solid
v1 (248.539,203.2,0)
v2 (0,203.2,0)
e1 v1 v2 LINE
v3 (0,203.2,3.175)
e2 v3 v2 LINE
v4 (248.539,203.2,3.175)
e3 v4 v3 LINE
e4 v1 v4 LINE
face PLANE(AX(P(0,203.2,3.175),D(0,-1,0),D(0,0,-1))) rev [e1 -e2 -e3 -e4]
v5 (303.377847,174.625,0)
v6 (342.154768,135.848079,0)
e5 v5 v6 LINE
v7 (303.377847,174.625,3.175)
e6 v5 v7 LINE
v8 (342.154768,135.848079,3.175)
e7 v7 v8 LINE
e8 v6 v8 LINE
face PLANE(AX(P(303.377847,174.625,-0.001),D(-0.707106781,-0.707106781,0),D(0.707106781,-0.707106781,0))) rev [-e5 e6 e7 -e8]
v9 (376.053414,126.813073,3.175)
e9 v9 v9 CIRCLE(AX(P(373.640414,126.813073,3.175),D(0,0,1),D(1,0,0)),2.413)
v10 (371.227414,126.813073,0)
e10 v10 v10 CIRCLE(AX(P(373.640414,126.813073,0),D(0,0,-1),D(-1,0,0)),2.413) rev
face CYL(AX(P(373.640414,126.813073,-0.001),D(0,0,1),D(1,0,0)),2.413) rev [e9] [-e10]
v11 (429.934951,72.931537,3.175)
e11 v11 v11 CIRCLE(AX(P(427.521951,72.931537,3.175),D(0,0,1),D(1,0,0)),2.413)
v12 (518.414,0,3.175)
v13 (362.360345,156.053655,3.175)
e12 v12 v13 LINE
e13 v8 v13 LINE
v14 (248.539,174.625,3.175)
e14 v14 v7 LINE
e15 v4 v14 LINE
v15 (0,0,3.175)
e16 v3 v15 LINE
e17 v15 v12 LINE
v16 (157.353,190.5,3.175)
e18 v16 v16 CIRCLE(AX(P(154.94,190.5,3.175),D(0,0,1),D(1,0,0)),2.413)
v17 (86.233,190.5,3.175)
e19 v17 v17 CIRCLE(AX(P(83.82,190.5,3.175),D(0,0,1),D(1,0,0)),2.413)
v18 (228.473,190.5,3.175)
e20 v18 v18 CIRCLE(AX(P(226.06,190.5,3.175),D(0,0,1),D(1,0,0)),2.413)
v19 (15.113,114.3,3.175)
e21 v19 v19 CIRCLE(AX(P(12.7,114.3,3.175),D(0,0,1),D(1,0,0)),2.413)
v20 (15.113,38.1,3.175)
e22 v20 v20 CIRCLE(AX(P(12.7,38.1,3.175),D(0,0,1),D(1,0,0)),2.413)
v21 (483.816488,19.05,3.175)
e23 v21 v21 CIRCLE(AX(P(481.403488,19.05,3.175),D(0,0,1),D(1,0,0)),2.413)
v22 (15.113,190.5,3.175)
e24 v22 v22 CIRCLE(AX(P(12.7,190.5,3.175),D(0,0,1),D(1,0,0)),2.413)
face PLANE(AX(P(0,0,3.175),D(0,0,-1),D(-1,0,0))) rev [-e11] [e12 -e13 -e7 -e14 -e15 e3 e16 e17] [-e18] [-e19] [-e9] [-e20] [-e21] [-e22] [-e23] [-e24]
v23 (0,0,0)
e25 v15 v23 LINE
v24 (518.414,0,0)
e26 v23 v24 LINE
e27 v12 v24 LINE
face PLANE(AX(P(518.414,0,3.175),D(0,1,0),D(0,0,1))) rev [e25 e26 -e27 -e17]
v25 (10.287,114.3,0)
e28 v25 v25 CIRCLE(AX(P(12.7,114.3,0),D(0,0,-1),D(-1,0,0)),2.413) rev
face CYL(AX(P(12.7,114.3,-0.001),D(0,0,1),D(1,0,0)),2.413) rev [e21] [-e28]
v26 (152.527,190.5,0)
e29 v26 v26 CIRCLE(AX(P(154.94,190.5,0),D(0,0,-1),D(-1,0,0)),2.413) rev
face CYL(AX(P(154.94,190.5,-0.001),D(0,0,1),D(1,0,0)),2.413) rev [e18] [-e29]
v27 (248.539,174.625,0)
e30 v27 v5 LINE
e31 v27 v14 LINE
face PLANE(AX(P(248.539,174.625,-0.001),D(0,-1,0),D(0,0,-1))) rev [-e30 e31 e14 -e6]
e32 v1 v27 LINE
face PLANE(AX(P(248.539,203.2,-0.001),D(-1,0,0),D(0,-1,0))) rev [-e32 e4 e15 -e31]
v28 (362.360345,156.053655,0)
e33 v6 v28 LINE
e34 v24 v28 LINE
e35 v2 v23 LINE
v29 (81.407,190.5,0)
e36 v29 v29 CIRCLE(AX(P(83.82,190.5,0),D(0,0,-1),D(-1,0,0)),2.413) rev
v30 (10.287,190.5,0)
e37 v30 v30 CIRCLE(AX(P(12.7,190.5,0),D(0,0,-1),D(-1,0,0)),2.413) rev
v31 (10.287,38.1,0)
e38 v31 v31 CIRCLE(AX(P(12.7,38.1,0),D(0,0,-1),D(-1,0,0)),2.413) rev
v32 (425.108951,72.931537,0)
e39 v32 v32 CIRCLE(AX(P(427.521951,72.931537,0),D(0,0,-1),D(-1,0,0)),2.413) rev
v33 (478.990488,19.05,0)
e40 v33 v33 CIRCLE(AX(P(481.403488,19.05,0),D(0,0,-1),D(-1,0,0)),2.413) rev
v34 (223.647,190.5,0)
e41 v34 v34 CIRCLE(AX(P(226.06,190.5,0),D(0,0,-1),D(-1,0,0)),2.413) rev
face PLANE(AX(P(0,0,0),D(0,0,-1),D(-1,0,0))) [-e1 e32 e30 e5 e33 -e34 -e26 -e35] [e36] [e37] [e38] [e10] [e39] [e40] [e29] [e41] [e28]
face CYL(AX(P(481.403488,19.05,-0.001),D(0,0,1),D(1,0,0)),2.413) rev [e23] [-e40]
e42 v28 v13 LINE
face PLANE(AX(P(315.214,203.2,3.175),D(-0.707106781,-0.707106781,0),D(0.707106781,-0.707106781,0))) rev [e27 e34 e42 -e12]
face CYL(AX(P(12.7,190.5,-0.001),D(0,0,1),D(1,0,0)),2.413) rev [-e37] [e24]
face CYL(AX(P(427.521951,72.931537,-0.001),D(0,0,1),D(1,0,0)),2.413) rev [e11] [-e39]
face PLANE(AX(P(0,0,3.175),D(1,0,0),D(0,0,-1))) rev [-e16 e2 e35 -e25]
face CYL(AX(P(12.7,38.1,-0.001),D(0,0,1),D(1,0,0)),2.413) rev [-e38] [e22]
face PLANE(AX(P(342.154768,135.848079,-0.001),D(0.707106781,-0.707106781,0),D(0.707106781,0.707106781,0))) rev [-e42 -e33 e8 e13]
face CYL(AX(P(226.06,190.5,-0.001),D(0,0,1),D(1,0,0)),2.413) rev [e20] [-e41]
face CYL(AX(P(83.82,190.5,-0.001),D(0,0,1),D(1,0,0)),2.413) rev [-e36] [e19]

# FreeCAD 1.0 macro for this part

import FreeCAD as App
import Part
import Sketcher
from FreeCAD import Vector
Q = App.Units.Quantity

doc = App.newDocument("Part")
body = doc.addObject("PartDesign::Body", "Body")

# Sketch on XY plane
sketch1 = body.newObject("Sketcher::SketchObject", "Sketch")
sketch1.AttachmentSupport = (doc.getObject("XY_Plane"), [""])
sketch1.MapMode = "FlatFace"
sketch1.addGeometry([
    Part.LineSegment(Vector(518.414, 0, 0), Vector(315.214, 203.2, 0)),
    Part.LineSegment(Vector(315.214, 203.2, 0), Vector(0, 203.2, 0)),
    Part.LineSegment(Vector(0, 203.2, 0), Vector(0, 0, 0)),
    Part.LineSegment(Vector(0, 0, 0), Vector(518.414, 0, 0)),
], False)
sketch1.addConstraint([
    Sketcher.Constraint("Coincident", 0, 2, 1, 1),
    Sketcher.Constraint("Coincident", 1, 2, 2, 1),
    Sketcher.Constraint("Coincident", 2, 2, 3, 1),
    Sketcher.Constraint("Coincident", 3, 2, 0, 1),
    Sketcher.Constraint("Horizontal", 1),
    Sketcher.Constraint("Vertical", 2),
    Sketcher.Constraint("Horizontal", 3),
    Sketcher.Constraint("Coincident", 2, 2, -1, 1),
    Sketcher.Constraint("DistanceY", 2, 2, 2, 1, Q("8 in")),
    Sketcher.Constraint("Angle", 0, Q("135 deg")),
    Sketcher.Constraint("DistanceX", 1, 2, 1, 1, Q("12.41 in")),
])
pad1 = body.newObject("PartDesign::Pad", "Pad")
pad1.Profile = sketch1
pad1.Length = Q("0.125 in")

# Sketch on XY plane
sketch2 = body.newObject("Sketcher::SketchObject", "Sketch001")
sketch2.AttachmentSupport = (doc.getObject("XY_Plane"), [""])
sketch2.MapMode = "FlatFace"
sketch2.AttachmentOffset = App.Placement(Vector(0, 0, 0.125 * 25.4), App.Rotation())
sketch2.addGeometry(Part.Circle(Vector(12.7, 190.5, 0), Vector(0, 0, 1), 2.413), False)
sketch2.addConstraint([
    Sketcher.Constraint("Diameter", 0, Q("0.19 in")),
    Sketcher.Constraint("DistanceX", -1, 1, 0, 3, Q("0.5 in")),
    Sketcher.Constraint("DistanceY", -1, 1, 0, 3, Q("7.5 in")),
])
pocket1 = body.newObject("PartDesign::Pocket", "Pocket")
pocket1.Profile = sketch2
pocket1.Type = "UpToFirst"

# Sketch on XY plane
sketch3 = body.newObject("Sketcher::SketchObject", "Sketch002")
sketch3.AttachmentSupport = (doc.getObject("XY_Plane"), [""])
sketch3.MapMode = "FlatFace"
sketch3.AttachmentOffset = App.Placement(Vector(0, 0, 0.125 * 25.4), App.Rotation())
sketch3.addGeometry(Part.Circle(Vector(83.82, 190.5, 0), Vector(0, 0, 1), 2.413), False)
sketch3.addConstraint([
    Sketcher.Constraint("Diameter", 0, Q("0.19 in")),
    Sketcher.Constraint("DistanceX", -1, 1, 0, 3, Q("3.3 in")),
    Sketcher.Constraint("DistanceY", -1, 1, 0, 3, Q("7.5 in")),
])
pocket2 = body.newObject("PartDesign::Pocket", "Pocket001")
pocket2.Profile = sketch3
pocket2.Type = "UpToFirst"

# Sketch on XY plane
sketch4 = body.newObject("Sketcher::SketchObject", "Sketch003")
sketch4.AttachmentSupport = (doc.getObject("XY_Plane"), [""])
sketch4.MapMode = "FlatFace"
sketch4.AttachmentOffset = App.Placement(Vector(0, 0, 0.125 * 25.4), App.Rotation())
sketch4.addGeometry(Part.Circle(Vector(154.94, 190.5, 0), Vector(0, 0, 1), 2.413), False)
sketch4.addConstraint([
    Sketcher.Constraint("Diameter", 0, Q("0.19 in")),
    Sketcher.Constraint("DistanceX", -1, 1, 0, 3, Q("6.1 in")),
    Sketcher.Constraint("DistanceY", -1, 1, 0, 3, Q("7.5 in")),
])
pocket3 = body.newObject("PartDesign::Pocket", "Pocket002")
pocket3.Profile = sketch4
pocket3.Type = "UpToFirst"

# Sketch on XY plane
sketch5 = body.newObject("Sketcher::SketchObject", "Sketch004")
sketch5.AttachmentSupport = (doc.getObject("XY_Plane"), [""])
sketch5.MapMode = "FlatFace"
sketch5.AttachmentOffset = App.Placement(Vector(0, 0, 0.125 * 25.4), App.Rotation())
sketch5.addGeometry(Part.Circle(Vector(226.06, 190.5, 0), Vector(0, 0, 1), 2.413), False)
sketch5.addConstraint([
    Sketcher.Constraint("Diameter", 0, Q("0.19 in")),
    Sketcher.Constraint("DistanceX", -1, 1, 0, 3, Q("8.9 in")),
    Sketcher.Constraint("DistanceY", -1, 1, 0, 3, Q("7.5 in")),
])
pocket4 = body.newObject("PartDesign::Pocket", "Pocket003")
pocket4.Profile = sketch5
pocket4.Type = "UpToFirst"

# Sketch on XY plane
sketch6 = body.newObject("Sketcher::SketchObject", "Sketch005")
sketch6.AttachmentSupport = (doc.getObject("XY_Plane"), [""])
sketch6.MapMode = "FlatFace"
sketch6.AttachmentOffset = App.Placement(Vector(0, 0, 0.125 * 25.4), App.Rotation())
sketch6.addGeometry(Part.Circle(Vector(12.7, 114.3, 0), Vector(0, 0, 1), 2.413), False)
sketch6.addConstraint([
    Sketcher.Constraint("Diameter", 0, Q("0.19 in")),
    Sketcher.Constraint("DistanceX", -1, 1, 0, 3, Q("0.5 in")),
    Sketcher.Constraint("DistanceY", -1, 1, 0, 3, Q("4.5 in")),
])
pocket5 = body.newObject("PartDesign::Pocket", "Pocket004")
pocket5.Profile = sketch6
pocket5.Type = "UpToFirst"

# Sketch on XY plane
sketch7 = body.newObject("Sketcher::SketchObject", "Sketch006")
sketch7.AttachmentSupport = (doc.getObject("XY_Plane"), [""])
sketch7.MapMode = "FlatFace"
sketch7.AttachmentOffset = App.Placement(Vector(0, 0, 0.125 * 25.4), App.Rotation())
sketch7.addGeometry(Part.Circle(Vector(12.7, 38.1, 0), Vector(0, 0, 1), 2.413), False)
sketch7.addConstraint([
    Sketcher.Constraint("Diameter", 0, Q("0.19 in")),
    Sketcher.Constraint("DistanceX", -1, 1, 0, 3, Q("0.5 in")),
    Sketcher.Constraint("DistanceY", -1, 1, 0, 3, Q("1.5 in")),
])
pocket6 = body.newObject("PartDesign::Pocket", "Pocket005")
pocket6.Profile = sketch7
pocket6.Type = "UpToFirst"

# Sketch on XY plane
sketch8 = body.newObject("Sketcher::SketchObject", "Sketch007")
sketch8.AttachmentSupport = (doc.getObject("XY_Plane"), [""])
sketch8.MapMode = "FlatFace"
sketch8.AttachmentOffset = App.Placement(Vector(0, 0, 0.125 * 25.4), App.Rotation())
sketch8.addGeometry(Part.Circle(Vector(481.403488, 19.05, 0), Vector(0, 0, 1), 2.413), False)
sketch8.addConstraint([
    Sketcher.Constraint("Diameter", 0, Q("0.19 in")),
    Sketcher.Constraint("DistanceY", -1, 1, 0, 3, Q("0.75 in")),
    Sketcher.Constraint("DistanceX", -1, 1, 0, 3, 481.403488),
])
pocket7 = body.newObject("PartDesign::Pocket", "Pocket006")
pocket7.Profile = sketch8
pocket7.Type = "UpToFirst"

# Sketch on XY plane
sketch9 = body.newObject("Sketcher::SketchObject", "Sketch008")
sketch9.AttachmentSupport = (doc.getObject("XY_Plane"), [""])
sketch9.MapMode = "FlatFace"
sketch9.AttachmentOffset = App.Placement(Vector(0, 0, 0.125 * 25.4), App.Rotation())
sketch9.addGeometry(Part.Circle(Vector(427.521951, 72.931537, 0), Vector(0, 0, 1), 2.413), False)
sketch9.addConstraint([
    Sketcher.Constraint("Diameter", 0, Q("0.19 in")),
    Sketcher.Constraint("DistanceX", -1, 1, 0, 3, 427.521951),
    Sketcher.Constraint("DistanceY", -1, 1, 0, 3, 72.931537),
])
pocket8 = body.newObject("PartDesign::Pocket", "Pocket007")
pocket8.Profile = sketch9
pocket8.Type = "UpToFirst"

# Sketch on XY plane
sketch10 = body.newObject("Sketcher::SketchObject", "Sketch009")
sketch10.AttachmentSupport = (doc.getObject("XY_Plane"), [""])
sketch10.MapMode = "FlatFace"
sketch10.AttachmentOffset = App.Placement(Vector(0, 0, 0.125 * 25.4), App.Rotation())
sketch10.addGeometry(Part.Circle(Vector(373.640414, 126.813073, 0), Vector(0, 0, 1), 2.413), False)
sketch10.addConstraint([
    Sketcher.Constraint("Diameter", 0, Q("0.19 in")),
    Sketcher.Constraint("DistanceX", -1, 1, 0, 3, 373.640414),
    Sketcher.Constraint("DistanceY", -1, 1, 0, 3, 126.813073),
])
pocket9 = body.newObject("PartDesign::Pocket", "Pocket008")
pocket9.Profile = sketch10
pocket9.Type = "UpToFirst"

# Sketch on XY plane
sketch11 = body.newObject("Sketcher::SketchObject", "Sketch010")
sketch11.AttachmentSupport = (doc.getObject("XY_Plane"), [""])
sketch11.MapMode = "FlatFace"
sketch11.AttachmentOffset = App.Placement(Vector(0, 0, 0.125 * 25.4), App.Rotation())
sketch11.addGeometry(Part.Circle(Vector(319.758878, 180.69461, 0), Vector(0, 0, 1), 2.413), False)
sketch11.addConstraint([
    Sketcher.Constraint("Diameter", 0, Q("0.19 in")),
    Sketcher.Constraint("DistanceY", -1, 1, 0, 3, 180.69461),
    Sketcher.Constraint("DistanceX", -1, 1, 0, 3, 319.758878),
])
pocket10 = body.newObject("PartDesign::Pocket", "Pocket009")
pocket10.Profile = sketch11
pocket10.Type = "UpToFirst"

# Sketch on XY plane
sketch12 = body.newObject("Sketcher::SketchObject", "Sketch011")
sketch12.AttachmentSupport = (doc.getObject("XY_Plane"), [""])
sketch12.MapMode = "FlatFace"
sketch12.AttachmentOffset = App.Placement(Vector(0, 0, 0.125 * 25.4), App.Rotation())
sketch12.addGeometry([
    Part.LineSegment(Vector(315.214, 203.2, 0), Vector(248.539, 203.2, 0)),  # 0
    Part.LineSegment(Vector(248.539, 203.2, 0), Vector(248.539, 174.625, 0)),  # 1
    Part.LineSegment(Vector(248.539, 174.625, 0), Vector(303.377847, 174.625, 0)),  # 2
    Part.LineSegment(Vector(303.377847, 174.625, 0), Vector(342.154768, 135.848079, 0)),  # 3
    Part.LineSegment(Vector(342.154768, 135.848079, 0), Vector(362.360345, 156.053655, 0)),  # 4
    Part.LineSegment(Vector(362.360345, 156.053655, 0), Vector(315.214, 203.2, 0)),  # 5
], False)
sketch12.addConstraint([
    Sketcher.Constraint("Coincident", 0, 2, 1, 1),
    Sketcher.Constraint("Coincident", 1, 2, 2, 1),
    Sketcher.Constraint("Coincident", 2, 2, 3, 1),
    Sketcher.Constraint("Coincident", 3, 2, 4, 1),
    Sketcher.Constraint("Coincident", 4, 2, 5, 1),
    Sketcher.Constraint("Coincident", 5, 2, 0, 1),
    Sketcher.Constraint("Horizontal", 0),
    Sketcher.Constraint("Vertical", 1),
    Sketcher.Constraint("Horizontal", 2),
    Sketcher.Constraint("Perpendicular", 3, 4),
    Sketcher.Constraint("Perpendicular", 4, 5),
    Sketcher.Constraint("DistanceY", -1, 1, 0, 2, Q("8 in")),
    Sketcher.Constraint("Angle", 3, Q("-45 deg")),
    Sketcher.Constraint("DistanceX", 0, 2, 0, 1, Q("2.625 in")),
    Sketcher.Constraint("DistanceY", 1, 2, 1, 1, Q("1.125 in")),
    Sketcher.Constraint("DistanceX", -1, 1, 5, 2, Q("12.41 in")),
    Sketcher.Constraint("Distance", 4, Q("1.125 in")),
    Sketcher.Constraint("Distance", 5, Q("2.625 in")),
])
pocket11 = body.newObject("PartDesign::Pocket", "Pocket010")
pocket11.Profile = sketch12
pocket11.Type = "UpToFirst"

doc.recompute()
